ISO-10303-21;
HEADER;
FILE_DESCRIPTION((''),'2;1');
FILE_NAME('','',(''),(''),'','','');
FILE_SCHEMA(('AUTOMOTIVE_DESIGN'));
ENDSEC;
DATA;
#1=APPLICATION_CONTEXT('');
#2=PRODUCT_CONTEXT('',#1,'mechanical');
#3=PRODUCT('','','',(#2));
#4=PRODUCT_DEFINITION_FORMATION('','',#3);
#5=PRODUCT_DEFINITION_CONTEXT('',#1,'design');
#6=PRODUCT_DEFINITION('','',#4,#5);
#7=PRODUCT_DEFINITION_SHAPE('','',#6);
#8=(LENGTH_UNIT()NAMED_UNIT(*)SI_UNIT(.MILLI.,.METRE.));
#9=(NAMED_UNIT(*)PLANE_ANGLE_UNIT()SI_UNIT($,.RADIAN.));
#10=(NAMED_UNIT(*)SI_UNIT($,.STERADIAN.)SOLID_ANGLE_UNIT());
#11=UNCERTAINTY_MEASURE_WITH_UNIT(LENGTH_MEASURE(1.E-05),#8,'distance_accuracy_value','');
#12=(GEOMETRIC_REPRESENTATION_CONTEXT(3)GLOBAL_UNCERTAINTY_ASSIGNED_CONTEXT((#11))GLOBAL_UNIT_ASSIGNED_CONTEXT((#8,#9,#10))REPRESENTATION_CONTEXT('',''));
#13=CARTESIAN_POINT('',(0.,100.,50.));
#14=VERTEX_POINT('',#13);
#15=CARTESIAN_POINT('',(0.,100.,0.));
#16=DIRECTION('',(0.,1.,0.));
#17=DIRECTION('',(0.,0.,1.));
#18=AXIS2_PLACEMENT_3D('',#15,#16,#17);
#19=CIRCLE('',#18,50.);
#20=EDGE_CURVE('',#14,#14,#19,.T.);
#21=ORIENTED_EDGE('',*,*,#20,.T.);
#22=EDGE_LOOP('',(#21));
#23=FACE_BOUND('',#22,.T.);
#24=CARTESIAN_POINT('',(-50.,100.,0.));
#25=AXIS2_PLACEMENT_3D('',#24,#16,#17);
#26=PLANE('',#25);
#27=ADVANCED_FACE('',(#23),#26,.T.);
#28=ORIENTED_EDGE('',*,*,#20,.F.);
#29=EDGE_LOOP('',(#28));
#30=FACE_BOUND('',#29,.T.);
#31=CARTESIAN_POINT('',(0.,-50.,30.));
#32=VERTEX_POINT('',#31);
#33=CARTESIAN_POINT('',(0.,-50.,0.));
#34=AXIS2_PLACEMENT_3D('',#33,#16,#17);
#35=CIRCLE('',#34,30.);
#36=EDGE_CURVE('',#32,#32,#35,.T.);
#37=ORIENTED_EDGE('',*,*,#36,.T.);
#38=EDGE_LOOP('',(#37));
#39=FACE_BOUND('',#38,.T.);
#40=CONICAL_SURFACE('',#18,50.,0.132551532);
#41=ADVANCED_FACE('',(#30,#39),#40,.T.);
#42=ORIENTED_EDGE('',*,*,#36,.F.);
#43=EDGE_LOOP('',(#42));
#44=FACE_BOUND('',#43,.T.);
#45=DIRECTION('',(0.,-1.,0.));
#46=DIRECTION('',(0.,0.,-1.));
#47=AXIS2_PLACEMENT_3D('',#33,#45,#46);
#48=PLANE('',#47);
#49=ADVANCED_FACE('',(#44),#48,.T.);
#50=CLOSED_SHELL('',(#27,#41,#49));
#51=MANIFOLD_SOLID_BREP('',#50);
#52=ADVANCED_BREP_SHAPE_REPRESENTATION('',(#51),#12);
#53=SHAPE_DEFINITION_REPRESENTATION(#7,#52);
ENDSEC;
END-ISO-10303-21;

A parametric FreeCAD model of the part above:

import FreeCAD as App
import Part
import Sketcher
from FreeCAD import Vector


def add_polygon(sketch, points):
    """Adds a closed chain of lines whose ends are joined by coincident constraints."""
    first, n = sketch.GeometryCount, len(points)
    for a, b in zip(points, points[1:] + points[:1]):
        sketch.addGeometry(Part.LineSegment(App.Vector(*a, 0), App.Vector(*b, 0)), False)
    for i in range(n):
        sketch.addConstraint(Sketcher.Constraint("Coincident", first + i, 2, first + (i + 1) % n, 1))

doc = App.newDocument("Part")
body = doc.addObject("PartDesign::Body", "Body")

# Sketch on XY plane
sketch1 = body.newObject("Sketcher::SketchObject", "Sketch")
sketch1.AttachmentSupport = (doc.getObject("XY_Plane"), [""])
sketch1.MapMode = "FlatFace"
add_polygon(sketch1, [(-30, -50), (0, -50), (0, 100), (-50, 100)])  # lines 0-3
sketch1.addConstraint(Sketcher.Constraint("Horizontal", 0))
sketch1.addConstraint(Sketcher.Constraint("Vertical", 1))
sketch1.addConstraint(Sketcher.Constraint("Horizontal", 2))
sketch1.addConstraint(Sketcher.Constraint("PointOnObject", 0, 2, -2))
sketch1.addConstraint(Sketcher.Constraint("DistanceX", 0, 1, 0, 2, 30.0))
sketch1.addConstraint(Sketcher.Constraint("DistanceX", 2, 2, 2, 1, 50.0))
sketch1.addConstraint(Sketcher.Constraint("DistanceY", 1, 1, 1, 2, 150.0))
sketch1.addConstraint(Sketcher.Constraint("DistanceY", 0, 2, -1, 1, 50.0))
revolution = body.newObject("PartDesign::Revolution", "Revolution")
revolution.Profile = sketch1
revolution.ReferenceAxis = (sketch1, ["V_Axis"])
revolution.Angle = 360

doc.recompute()
